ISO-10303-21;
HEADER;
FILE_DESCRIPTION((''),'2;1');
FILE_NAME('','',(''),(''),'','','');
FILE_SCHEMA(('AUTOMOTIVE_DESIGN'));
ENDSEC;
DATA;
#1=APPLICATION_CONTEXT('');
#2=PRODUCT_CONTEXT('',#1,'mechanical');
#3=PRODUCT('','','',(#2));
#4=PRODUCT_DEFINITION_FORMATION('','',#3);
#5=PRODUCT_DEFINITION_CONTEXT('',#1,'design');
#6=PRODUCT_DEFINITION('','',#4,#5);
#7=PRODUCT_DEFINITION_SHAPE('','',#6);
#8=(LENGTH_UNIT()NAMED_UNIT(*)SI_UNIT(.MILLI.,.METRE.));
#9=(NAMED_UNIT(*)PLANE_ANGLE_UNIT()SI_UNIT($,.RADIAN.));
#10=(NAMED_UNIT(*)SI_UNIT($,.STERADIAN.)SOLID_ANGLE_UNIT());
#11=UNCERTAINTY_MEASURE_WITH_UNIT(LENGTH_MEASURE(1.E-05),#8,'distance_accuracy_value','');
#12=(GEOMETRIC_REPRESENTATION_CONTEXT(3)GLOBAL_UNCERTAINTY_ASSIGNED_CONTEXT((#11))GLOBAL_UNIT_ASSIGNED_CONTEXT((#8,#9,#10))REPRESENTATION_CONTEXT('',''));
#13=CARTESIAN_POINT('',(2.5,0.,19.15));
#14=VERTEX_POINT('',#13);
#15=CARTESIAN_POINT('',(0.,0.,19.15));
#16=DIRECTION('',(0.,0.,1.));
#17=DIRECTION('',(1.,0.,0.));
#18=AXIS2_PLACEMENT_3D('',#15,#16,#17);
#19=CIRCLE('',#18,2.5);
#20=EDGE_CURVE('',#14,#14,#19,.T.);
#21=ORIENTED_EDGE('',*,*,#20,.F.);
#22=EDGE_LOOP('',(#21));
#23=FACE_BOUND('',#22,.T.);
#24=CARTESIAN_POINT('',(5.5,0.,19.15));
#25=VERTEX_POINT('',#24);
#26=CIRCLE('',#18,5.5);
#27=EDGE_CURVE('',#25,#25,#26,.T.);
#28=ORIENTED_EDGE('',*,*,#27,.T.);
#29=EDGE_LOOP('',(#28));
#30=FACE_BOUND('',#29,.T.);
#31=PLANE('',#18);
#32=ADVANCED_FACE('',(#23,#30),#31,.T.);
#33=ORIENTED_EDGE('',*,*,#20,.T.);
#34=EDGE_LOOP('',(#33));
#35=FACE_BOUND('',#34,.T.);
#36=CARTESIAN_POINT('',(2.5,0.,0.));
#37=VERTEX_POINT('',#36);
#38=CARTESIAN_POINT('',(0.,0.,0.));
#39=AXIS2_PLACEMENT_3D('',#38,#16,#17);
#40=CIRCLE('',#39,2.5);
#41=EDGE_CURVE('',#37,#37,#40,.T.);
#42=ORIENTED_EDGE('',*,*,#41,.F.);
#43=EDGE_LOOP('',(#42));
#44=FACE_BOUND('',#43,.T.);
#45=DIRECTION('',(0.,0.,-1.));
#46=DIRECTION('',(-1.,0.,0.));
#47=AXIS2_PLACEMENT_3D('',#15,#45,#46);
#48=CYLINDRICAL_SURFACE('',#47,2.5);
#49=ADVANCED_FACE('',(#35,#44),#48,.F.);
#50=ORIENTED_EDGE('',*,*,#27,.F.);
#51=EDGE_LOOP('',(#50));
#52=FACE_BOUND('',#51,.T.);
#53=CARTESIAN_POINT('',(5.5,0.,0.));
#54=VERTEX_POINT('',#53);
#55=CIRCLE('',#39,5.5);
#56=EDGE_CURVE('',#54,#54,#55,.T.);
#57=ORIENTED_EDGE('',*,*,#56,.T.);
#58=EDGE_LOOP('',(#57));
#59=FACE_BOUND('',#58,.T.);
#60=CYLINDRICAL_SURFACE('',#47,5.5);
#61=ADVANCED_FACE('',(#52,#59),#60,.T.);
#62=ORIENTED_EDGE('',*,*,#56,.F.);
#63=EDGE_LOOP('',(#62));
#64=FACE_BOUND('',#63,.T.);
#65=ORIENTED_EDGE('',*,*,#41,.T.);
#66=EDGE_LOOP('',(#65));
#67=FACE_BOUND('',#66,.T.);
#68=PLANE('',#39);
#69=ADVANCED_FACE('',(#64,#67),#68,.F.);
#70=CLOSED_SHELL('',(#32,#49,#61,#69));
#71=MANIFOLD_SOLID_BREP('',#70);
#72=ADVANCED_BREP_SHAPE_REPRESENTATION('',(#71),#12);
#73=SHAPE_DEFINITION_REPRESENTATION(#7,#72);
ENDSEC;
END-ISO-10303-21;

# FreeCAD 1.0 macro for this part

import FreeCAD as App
import Part
import Sketcher

V = App.Vector

doc = App.newDocument("Part")
body = doc.addObject("PartDesign::Body", "Body")

# Sketch on XY plane
sketch1 = body.newObject("Sketcher::SketchObject", "Sketch")
sketch1.AttachmentSupport = (doc.getObject("XY_Plane"), [""])
sketch1.MapMode = "FlatFace"
sketch1.addGeometry([
    Part.Circle(V(0, 0, 0), V(0, 0, 1), 5.5),
    Part.Circle(V(0, 0, 0), V(0, 0, 1), 2.5),
], False)
sketch1.addConstraint([
    Sketcher.Constraint("Coincident", 0, 3, -1, 1),
    Sketcher.Constraint("Coincident", 1, 3, -1, 1),
    Sketcher.Constraint("Diameter", 0, 11.0),
    Sketcher.Constraint("Diameter", 1, 5.0),
])
pad1 = body.newObject("PartDesign::Pad", "Pad")
pad1.Profile = sketch1
pad1.Length = 19.15

doc.recompute()
